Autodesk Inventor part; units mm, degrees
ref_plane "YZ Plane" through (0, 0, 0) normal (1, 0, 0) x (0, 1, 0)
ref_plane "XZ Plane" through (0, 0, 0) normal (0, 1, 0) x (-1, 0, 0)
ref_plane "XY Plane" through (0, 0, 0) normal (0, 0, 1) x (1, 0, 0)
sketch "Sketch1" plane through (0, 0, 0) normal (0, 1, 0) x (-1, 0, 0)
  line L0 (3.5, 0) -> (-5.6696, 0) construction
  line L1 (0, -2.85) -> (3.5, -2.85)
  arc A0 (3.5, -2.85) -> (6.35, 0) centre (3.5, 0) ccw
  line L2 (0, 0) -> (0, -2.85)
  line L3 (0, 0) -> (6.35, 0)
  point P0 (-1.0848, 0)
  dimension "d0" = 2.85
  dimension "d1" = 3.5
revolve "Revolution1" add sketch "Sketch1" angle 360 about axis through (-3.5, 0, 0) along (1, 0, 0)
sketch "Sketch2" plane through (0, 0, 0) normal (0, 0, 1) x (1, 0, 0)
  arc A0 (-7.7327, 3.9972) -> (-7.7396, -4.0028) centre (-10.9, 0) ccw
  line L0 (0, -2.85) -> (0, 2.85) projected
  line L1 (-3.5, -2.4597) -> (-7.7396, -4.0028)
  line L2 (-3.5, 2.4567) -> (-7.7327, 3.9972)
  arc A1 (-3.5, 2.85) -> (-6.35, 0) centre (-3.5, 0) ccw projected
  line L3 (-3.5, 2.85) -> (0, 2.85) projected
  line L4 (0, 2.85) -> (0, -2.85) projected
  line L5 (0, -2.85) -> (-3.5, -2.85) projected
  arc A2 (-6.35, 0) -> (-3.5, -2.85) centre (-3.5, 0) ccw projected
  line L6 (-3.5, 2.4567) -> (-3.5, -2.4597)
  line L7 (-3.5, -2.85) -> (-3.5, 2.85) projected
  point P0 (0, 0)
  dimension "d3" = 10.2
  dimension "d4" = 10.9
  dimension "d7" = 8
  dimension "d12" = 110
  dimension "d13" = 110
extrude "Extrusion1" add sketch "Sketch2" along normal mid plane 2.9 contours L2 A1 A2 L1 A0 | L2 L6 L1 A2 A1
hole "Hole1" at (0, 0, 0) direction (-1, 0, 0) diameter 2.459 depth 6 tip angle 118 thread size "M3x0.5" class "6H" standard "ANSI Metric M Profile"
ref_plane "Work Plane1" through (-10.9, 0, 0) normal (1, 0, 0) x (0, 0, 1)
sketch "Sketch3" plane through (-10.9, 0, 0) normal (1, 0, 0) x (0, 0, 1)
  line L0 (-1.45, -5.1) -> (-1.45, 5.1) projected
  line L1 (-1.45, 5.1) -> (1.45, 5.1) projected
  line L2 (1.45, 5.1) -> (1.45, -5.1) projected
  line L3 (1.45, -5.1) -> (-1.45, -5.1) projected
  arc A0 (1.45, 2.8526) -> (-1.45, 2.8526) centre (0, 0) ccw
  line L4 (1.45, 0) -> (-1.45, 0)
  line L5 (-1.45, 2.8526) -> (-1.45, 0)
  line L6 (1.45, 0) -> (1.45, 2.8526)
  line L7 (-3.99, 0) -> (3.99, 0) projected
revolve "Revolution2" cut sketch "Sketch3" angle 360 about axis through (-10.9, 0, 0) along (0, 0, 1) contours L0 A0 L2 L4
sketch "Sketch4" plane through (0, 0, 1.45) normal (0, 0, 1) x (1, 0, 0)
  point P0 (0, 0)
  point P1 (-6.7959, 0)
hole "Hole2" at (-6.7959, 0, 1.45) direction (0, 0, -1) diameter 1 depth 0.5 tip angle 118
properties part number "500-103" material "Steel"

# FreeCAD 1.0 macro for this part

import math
import FreeCAD as App
import Part
import Sketcher

V = App.Vector
Q = App.Units.Quantity

doc = App.newDocument("Part")
body = doc.addObject("PartDesign::Body", "Body")

# Sketch on XZ plane
sketch1 = doc.addObject("Sketcher::SketchObject", "Sketch")
body.addObject(sketch1)
sketch1.AttachmentSupport = (doc.XZ_Plane, [""])
sketch1.MapMode = "FlatFace"
sketch1.addGeometry(Part.LineSegment(V(0, 0, 0), V(0, -2.85, 0)), False)
sketch1.addGeometry(Part.LineSegment(V(0, -2.85, 0), V(-3.5, -2.85, 0)), False)
sketch1.addGeometry(Part.ArcOfCircle(Part.Circle(V(-3.5, 0, 0), V(0, 0, 1), 2.85), math.radians(180), math.radians(270)), False)
sketch1.addGeometry(Part.LineSegment(V(-6.35, 0, 0), V(0, 0, 0)), False)
sketch1.addConstraint(Sketcher.Constraint("Coincident", 0, 2, 1, 1))
sketch1.addConstraint(Sketcher.Constraint("Tangent", 1, 2, 2, 2))
sketch1.addConstraint(Sketcher.Constraint("Coincident", 2, 1, 3, 1))
sketch1.addConstraint(Sketcher.Constraint("Coincident", 3, 2, 0, 1))
sketch1.addConstraint(Sketcher.Constraint("Vertical", 0))
sketch1.addConstraint(Sketcher.Constraint("Horizontal", 1))
sketch1.addConstraint(Sketcher.Constraint("Horizontal", 3))
sketch1.addConstraint(Sketcher.Constraint("Coincident", 3, 2, -1, 1))
sketch1.addConstraint(Sketcher.Constraint("PointOnObject", 2, 3, -1))
sketch1.addConstraint(Sketcher.Constraint("Radius", 2, 2.85))
sketch1.addConstraint(Sketcher.Constraint("DistanceX", 1, 2, 1, 1, 3.5))
revolution = doc.addObject("PartDesign::Revolution", "Revolution")
body.addObject(revolution)
revolution.Profile = sketch1
revolution.ReferenceAxis = (sketch1, ["H_Axis"])
revolution.Angle = 360

# Sketch on XY plane
sketch2 = doc.addObject("Sketcher::SketchObject", "Sketch001")
body.addObject(sketch2)
sketch2.AttachmentSupport = (doc.XY_Plane, [""])
sketch2.MapMode = "FlatFace"
sketch2.addGeometry(Part.ArcOfCircle(Part.Circle(V(-10.9, 0, 0), V(0, 0, 1), 5.099941), math.radians(51.607411), math.radians(308.292762)), False)
sketch2.addGeometry(Part.LineSegment(V(-7.7396, -4.0028, 0), V(-3.5, -2.4597, 0)), False)
sketch2.addGeometry(Part.LineSegment(V(-3.5, -2.4597, 0), V(-3.5, 2.4567, 0)), False)
sketch2.addGeometry(Part.LineSegment(V(-3.5, 2.4567, 0), V(-7.7327, 3.9972, 0)), False)
sketch2.addConstraint(Sketcher.Constraint("Coincident", 0, 2, 1, 1))
sketch2.addConstraint(Sketcher.Constraint("Coincident", 1, 2, 2, 1))
sketch2.addConstraint(Sketcher.Constraint("Coincident", 2, 2, 3, 1))
sketch2.addConstraint(Sketcher.Constraint("Coincident", 3, 2, 0, 1))
sketch2.addConstraint(Sketcher.Constraint("Vertical", 2))
sketch2.addConstraint(Sketcher.Constraint("PointOnObject", 0, 3, -1))
sketch2.addConstraint(Sketcher.Constraint("Radius", 0, 5.1))
sketch2.addConstraint(Sketcher.Constraint("DistanceY", 0, 2, 3, 2, 8.0))
sketch2.addConstraint(Sketcher.Constraint("DistanceX", 0, 3, -1, 1, 10.9))
sketch2.addConstraint(Sketcher.Constraint("Angle", 1, Q("20.0001 deg")))
sketch2.addConstraint(Sketcher.Constraint("Angle", 3, Q("160.001 deg")))
sketch2.addConstraint(Sketcher.Constraint("DistanceX", 1, 2, -1, 1, 3.5))
sketch2.addConstraint(Sketcher.Constraint("DistanceY", 0, 2, 1, 2, 1.543))
pad1 = doc.addObject("PartDesign::Pad", "Pad")
body.addObject(pad1)
pad1.Profile = sketch2
pad1.Length = 2.9
pad1.Midplane = True

# Sketch on YZ plane
sketch3 = doc.addObject("Sketcher::SketchObject", "Sketch002")
body.addObject(sketch3)
sketch3.AttachmentSupport = (doc.YZ_Plane, [""])
sketch3.MapMode = "FlatFace"
sketch3.addGeometry(Part.Circle(V(0, 0, 0), V(0, 0, 1), 1.2295), False)
sketch3.addConstraint(Sketcher.Constraint("Coincident", 0, 3, -1, 1))
sketch3.addConstraint(Sketcher.Constraint("Diameter", 0, 2.459))
doc.recompute()
hole = doc.addObject("PartDesign::Hole", "Hole")
body.addObject(hole)
hole.Profile = sketch3
hole.ThreadType = "None"
hole.Diameter = 2.459
hole.DepthType = "Dimension"
hole.Depth = 6
hole.DrillPoint = "Angled"
hole.DrillPointAngle = 118

# Sketch on YZ plane
sketch4 = doc.addObject("Sketcher::SketchObject", "Sketch003")
body.addObject(sketch4)
sketch4.AttachmentSupport = (doc.YZ_Plane, [""])
sketch4.MapMode = "FlatFace"
sketch4.AttachmentOffset = App.Placement(V(0, 0, -10.9), App.Rotation())
sketch4.addGeometry(Part.LineSegment(V(-2.8526, -1.45, 0), V(0, -1.45, 0)), False)
sketch4.addGeometry(Part.LineSegment(V(0, -1.45, 0), V(0, 1.45, 0)), False)
sketch4.addGeometry(Part.LineSegment(V(0, 1.45, 0), V(-2.8526, 1.45, 0)), False)
sketch4.addGeometry(Part.ArcOfCircle(Part.Circle(V(0, 0, 0), V(0, 0, 1), 3.199973), math.radians(153.055395), math.radians(206.944605)), False)
sketch4.addConstraint(Sketcher.Constraint("Coincident", 0, 2, 1, 1))
sketch4.addConstraint(Sketcher.Constraint("Coincident", 1, 2, 2, 1))
sketch4.addConstraint(Sketcher.Constraint("Coincident", 2, 2, 3, 1))
sketch4.addConstraint(Sketcher.Constraint("Coincident", 3, 2, 0, 1))
sketch4.addConstraint(Sketcher.Constraint("Horizontal", 0))
sketch4.addConstraint(Sketcher.Constraint("Vertical", 1))
sketch4.addConstraint(Sketcher.Constraint("Horizontal", 2))
sketch4.addConstraint(Sketcher.Constraint("Coincident", 3, 3, -1, 1))
sketch4.addConstraint(Sketcher.Constraint("Symmetric", 0, 2, 1, 2, -1, 1))
sketch4.addConstraint(Sketcher.Constraint("Radius", 3, 3.2))
sketch4.addConstraint(Sketcher.Constraint("DistanceY", 1, 1, 1, 2, 2.9))
groove = doc.addObject("PartDesign::Groove", "Groove")
body.addObject(groove)
groove.Profile = sketch4
groove.ReferenceAxis = (sketch4, ["V_Axis"])
groove.Angle = 360

# Sketch on XY plane
sketch5 = doc.addObject("Sketcher::SketchObject", "Sketch004")
body.addObject(sketch5)
sketch5.AttachmentSupport = (doc.XY_Plane, [""])
sketch5.MapMode = "FlatFace"
sketch5.AttachmentOffset = App.Placement(V(0, 0, 1.45), App.Rotation())
sketch5.addGeometry(Part.Circle(V(-6.7959, 0, 0), V(0, 0, 1), 0.5), False)
sketch5.addConstraint(Sketcher.Constraint("PointOnObject", 0, 3, -1))
sketch5.addConstraint(Sketcher.Constraint("Diameter", 0, 1.0))
sketch5.addConstraint(Sketcher.Constraint("DistanceX", 0, 3, -1, 1, 6.796))
doc.recompute()
hole2 = doc.addObject("PartDesign::Hole", "Hole001")
body.addObject(hole2)
hole2.Profile = sketch5
hole2.ThreadType = "None"
hole2.Diameter = 1
hole2.DepthType = "Dimension"
hole2.Depth = 0.5
hole2.DrillPoint = "Angled"
hole2.DrillPointAngle = 118

doc.recompute()
